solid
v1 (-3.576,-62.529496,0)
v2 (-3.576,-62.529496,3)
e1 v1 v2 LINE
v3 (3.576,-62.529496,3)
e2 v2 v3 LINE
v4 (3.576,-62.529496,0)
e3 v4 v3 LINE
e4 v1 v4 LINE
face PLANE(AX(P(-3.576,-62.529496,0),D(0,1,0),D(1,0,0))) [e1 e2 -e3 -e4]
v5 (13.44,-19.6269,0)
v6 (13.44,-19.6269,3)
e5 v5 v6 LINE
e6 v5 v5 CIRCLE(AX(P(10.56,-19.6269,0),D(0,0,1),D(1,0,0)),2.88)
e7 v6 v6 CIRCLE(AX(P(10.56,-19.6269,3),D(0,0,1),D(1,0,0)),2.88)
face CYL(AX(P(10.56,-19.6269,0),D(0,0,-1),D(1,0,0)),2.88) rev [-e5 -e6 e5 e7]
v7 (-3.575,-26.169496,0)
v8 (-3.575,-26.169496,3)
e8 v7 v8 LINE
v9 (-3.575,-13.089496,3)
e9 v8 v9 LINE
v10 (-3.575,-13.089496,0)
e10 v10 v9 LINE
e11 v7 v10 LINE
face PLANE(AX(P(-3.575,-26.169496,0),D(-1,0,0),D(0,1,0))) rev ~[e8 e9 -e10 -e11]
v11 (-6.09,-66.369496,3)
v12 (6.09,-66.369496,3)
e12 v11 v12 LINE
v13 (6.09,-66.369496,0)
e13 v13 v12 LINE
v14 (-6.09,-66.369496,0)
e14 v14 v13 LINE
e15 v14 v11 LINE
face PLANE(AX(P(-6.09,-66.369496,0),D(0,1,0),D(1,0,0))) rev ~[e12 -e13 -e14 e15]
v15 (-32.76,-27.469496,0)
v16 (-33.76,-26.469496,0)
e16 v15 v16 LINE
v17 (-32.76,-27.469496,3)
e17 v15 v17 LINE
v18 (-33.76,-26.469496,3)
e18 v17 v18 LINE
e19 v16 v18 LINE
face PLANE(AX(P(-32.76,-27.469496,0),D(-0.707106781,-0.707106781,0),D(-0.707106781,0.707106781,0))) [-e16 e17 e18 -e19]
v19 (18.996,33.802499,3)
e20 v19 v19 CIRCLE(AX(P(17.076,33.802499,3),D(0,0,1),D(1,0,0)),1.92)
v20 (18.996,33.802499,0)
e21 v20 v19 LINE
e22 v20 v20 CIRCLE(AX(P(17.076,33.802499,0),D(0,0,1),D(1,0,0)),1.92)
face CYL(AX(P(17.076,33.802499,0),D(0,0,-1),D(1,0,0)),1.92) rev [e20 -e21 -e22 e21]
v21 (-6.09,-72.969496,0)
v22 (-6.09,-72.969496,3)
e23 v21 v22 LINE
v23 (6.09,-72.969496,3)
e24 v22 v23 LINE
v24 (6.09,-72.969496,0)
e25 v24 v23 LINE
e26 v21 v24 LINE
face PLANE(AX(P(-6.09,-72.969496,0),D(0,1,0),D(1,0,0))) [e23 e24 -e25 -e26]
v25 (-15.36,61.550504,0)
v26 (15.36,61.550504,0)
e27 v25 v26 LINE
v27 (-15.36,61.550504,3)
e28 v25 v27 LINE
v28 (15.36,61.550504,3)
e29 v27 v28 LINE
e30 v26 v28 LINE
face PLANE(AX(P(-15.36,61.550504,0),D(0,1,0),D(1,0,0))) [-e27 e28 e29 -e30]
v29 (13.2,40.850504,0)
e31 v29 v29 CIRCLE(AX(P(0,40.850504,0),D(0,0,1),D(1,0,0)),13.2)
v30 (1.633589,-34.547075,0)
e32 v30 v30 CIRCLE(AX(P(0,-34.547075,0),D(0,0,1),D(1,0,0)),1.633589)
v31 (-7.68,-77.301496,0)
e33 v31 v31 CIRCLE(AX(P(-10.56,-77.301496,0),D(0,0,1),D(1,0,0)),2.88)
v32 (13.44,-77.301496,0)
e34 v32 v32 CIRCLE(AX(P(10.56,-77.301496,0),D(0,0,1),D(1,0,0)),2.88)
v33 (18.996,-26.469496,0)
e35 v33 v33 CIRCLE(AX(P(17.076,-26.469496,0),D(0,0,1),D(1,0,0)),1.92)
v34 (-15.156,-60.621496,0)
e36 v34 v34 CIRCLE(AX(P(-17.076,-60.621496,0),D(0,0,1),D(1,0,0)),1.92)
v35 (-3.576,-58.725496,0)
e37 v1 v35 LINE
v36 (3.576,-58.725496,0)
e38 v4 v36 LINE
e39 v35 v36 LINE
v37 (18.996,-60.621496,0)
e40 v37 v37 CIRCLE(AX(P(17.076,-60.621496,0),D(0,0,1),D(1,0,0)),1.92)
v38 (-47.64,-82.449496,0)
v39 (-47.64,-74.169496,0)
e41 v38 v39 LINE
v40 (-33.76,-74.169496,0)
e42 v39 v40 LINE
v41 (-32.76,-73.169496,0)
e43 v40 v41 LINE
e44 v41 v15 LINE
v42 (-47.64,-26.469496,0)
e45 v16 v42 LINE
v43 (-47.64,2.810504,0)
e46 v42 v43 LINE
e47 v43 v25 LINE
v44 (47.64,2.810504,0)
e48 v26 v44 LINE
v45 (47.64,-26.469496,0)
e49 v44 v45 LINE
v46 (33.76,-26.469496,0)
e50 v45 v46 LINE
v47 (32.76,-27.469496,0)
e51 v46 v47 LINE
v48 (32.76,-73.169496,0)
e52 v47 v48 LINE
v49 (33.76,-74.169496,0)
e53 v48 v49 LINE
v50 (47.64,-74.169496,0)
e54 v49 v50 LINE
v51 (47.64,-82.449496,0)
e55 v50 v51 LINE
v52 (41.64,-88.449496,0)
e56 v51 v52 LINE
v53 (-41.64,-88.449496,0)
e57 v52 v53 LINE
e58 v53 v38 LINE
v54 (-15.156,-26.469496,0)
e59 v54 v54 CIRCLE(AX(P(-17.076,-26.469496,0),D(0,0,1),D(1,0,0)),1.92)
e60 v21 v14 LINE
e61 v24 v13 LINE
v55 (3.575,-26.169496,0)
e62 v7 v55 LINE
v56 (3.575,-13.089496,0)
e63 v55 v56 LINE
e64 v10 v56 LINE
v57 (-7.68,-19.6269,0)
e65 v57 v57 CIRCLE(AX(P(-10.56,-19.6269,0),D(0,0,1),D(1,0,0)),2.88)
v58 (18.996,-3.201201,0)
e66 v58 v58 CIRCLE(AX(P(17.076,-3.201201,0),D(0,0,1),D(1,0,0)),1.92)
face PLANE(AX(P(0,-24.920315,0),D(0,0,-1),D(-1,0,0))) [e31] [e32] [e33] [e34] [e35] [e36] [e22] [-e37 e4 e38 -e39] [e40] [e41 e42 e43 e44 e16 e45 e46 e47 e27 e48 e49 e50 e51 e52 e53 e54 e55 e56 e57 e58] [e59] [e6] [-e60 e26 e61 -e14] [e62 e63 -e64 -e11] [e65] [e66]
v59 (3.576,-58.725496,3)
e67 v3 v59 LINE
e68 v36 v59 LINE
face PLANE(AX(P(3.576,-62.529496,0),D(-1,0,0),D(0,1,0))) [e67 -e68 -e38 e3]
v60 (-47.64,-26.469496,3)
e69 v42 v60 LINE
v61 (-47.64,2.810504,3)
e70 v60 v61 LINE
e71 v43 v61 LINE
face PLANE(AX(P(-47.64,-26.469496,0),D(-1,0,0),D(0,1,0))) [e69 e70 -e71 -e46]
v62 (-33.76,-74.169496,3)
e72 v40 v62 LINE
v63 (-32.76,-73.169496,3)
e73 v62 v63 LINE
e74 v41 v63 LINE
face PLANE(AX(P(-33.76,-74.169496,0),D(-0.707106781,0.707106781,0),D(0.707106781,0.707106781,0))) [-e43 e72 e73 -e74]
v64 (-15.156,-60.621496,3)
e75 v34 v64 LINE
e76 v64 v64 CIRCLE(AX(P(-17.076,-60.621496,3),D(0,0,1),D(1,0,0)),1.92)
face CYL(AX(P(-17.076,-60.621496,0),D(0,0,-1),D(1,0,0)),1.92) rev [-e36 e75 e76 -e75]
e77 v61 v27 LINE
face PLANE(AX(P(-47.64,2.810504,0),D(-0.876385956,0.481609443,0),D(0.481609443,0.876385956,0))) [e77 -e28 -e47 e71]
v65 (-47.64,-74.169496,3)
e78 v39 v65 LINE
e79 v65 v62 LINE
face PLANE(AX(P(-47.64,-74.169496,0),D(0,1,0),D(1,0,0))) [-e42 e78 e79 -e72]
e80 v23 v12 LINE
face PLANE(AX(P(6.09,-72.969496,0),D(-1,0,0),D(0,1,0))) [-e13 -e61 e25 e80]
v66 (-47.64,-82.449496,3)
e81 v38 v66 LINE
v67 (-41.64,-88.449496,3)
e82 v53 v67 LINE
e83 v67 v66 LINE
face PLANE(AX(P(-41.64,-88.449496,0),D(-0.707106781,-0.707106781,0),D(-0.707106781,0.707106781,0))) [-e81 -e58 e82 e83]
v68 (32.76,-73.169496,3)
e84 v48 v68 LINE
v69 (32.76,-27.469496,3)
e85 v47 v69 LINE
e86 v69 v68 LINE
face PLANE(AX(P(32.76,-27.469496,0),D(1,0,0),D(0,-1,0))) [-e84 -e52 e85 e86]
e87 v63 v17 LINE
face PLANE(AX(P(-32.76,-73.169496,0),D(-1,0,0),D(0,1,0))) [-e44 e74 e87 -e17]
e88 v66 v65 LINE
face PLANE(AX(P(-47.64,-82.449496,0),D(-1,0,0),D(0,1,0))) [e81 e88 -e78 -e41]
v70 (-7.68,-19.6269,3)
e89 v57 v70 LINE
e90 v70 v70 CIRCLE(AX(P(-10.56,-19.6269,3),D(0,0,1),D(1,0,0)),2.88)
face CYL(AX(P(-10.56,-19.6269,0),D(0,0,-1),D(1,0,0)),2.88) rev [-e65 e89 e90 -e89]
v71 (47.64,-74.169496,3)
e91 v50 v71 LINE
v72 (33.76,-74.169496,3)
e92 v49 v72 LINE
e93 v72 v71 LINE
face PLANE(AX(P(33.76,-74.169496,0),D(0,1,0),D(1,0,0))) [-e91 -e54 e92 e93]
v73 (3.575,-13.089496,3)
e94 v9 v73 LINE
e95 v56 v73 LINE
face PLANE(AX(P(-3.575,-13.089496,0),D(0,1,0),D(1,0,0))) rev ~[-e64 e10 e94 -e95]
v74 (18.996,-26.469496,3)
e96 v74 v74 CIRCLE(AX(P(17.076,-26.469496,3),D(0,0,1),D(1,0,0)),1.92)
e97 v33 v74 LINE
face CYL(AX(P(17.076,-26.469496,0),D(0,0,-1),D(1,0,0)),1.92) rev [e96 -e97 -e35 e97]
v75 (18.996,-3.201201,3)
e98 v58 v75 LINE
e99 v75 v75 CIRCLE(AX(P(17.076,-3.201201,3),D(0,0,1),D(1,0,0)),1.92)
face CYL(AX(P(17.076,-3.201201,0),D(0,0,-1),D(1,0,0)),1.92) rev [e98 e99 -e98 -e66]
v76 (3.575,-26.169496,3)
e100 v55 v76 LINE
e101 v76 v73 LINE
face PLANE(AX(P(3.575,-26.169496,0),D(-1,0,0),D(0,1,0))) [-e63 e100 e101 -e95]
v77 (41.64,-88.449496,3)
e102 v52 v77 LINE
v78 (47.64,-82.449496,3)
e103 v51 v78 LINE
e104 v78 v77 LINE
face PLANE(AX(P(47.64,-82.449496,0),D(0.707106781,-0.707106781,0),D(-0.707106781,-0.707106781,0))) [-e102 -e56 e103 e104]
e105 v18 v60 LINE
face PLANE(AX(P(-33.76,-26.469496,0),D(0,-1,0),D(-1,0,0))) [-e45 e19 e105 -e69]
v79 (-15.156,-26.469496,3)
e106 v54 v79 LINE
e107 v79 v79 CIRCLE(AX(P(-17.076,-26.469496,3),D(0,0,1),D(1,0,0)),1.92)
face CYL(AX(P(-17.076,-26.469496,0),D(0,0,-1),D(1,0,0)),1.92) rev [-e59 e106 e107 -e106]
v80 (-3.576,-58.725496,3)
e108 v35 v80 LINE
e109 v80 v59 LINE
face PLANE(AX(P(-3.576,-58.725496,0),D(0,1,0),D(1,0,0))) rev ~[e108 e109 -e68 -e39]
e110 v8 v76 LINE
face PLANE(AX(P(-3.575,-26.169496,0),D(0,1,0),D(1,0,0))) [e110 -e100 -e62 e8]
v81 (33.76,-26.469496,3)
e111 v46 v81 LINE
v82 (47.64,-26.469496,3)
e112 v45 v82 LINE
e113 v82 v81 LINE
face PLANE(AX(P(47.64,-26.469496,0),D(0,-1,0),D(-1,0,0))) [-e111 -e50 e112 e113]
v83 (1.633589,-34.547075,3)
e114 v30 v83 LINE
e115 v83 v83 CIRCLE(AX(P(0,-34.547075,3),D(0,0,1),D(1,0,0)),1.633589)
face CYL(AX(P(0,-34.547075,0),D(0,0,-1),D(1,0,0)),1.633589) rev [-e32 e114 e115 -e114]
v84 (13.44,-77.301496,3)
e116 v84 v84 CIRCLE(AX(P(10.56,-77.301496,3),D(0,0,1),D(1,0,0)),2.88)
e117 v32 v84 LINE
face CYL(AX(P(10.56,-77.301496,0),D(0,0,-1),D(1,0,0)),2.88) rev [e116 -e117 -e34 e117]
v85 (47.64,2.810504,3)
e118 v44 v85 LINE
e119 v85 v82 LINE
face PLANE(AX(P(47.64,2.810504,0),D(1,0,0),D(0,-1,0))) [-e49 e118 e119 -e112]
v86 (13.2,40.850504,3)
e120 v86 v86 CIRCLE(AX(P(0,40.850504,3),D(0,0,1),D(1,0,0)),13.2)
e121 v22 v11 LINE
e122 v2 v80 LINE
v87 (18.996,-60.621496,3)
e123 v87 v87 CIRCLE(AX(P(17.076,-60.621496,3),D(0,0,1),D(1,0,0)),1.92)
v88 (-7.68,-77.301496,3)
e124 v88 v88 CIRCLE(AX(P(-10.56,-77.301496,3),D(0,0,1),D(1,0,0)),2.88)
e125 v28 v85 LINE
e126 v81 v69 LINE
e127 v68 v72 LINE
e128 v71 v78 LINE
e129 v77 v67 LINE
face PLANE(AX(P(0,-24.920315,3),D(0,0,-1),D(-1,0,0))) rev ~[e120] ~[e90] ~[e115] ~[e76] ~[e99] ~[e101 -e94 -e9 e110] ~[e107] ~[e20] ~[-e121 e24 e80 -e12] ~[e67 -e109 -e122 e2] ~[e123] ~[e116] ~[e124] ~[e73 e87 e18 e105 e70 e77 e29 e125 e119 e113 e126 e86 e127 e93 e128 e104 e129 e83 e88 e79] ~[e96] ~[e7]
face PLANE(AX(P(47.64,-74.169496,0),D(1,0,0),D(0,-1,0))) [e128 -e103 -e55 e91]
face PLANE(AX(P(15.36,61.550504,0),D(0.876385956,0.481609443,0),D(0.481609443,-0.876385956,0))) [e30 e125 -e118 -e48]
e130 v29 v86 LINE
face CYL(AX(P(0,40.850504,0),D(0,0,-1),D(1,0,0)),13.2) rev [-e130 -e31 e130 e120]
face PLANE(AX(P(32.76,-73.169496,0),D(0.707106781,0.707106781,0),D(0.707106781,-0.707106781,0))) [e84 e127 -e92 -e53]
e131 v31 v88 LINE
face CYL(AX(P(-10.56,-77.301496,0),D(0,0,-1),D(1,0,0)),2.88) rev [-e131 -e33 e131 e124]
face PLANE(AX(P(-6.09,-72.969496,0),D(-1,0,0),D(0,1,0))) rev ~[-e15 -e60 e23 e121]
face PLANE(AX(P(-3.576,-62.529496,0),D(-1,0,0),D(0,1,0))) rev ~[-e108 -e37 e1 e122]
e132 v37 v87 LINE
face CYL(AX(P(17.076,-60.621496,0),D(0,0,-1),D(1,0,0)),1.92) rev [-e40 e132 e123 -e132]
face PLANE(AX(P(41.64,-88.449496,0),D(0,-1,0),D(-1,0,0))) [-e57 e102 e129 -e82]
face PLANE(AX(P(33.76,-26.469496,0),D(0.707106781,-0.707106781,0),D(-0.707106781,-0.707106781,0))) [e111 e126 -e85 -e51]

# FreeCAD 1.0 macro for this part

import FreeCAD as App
import Part
import Sketcher

doc = App.newDocument("Part")
body = doc.addObject("PartDesign::Body", "Body")

sketch1 = body.newObject("Sketcher::SketchObject", "Sketch")
sketch1.AttachmentSupport = (doc.getObject("XY_Plane"), [""])
sketch1.MapMode = "FlatFace"
sketch1.addGeometry([
    Part.LineSegment(App.Vector(15.4, 61.6, 0), App.Vector(-15.4, 61.6, 0)),
    Part.LineSegment(App.Vector(-15.4, 61.6, 0), App.Vector(-47.6, 2.8, 0)),
    Part.LineSegment(App.Vector(-47.6, 2.8, 0), App.Vector(-47.6, -26.5, 0)),
    Part.LineSegment(App.Vector(-47.6, -26.5, 0), App.Vector(-33.8, -26.5, 0)),
    Part.LineSegment(App.Vector(-33.8, -26.5, 0), App.Vector(-32.8, -27.5, 0)),
    Part.LineSegment(App.Vector(-32.8, -27.5, 0), App.Vector(-32.8, -73.2, 0)),
    Part.LineSegment(App.Vector(-32.8, -73.2, 0), App.Vector(-33.8, -74.2, 0)),
    Part.LineSegment(App.Vector(-33.8, -74.2, 0), App.Vector(-47.6, -74.2, 0)),
    Part.LineSegment(App.Vector(-47.6, -74.2, 0), App.Vector(-47.6, -82.4, 0)),
    Part.LineSegment(App.Vector(-47.6, -82.4, 0), App.Vector(-41.6, -88.4, 0)),
    Part.LineSegment(App.Vector(-41.6, -88.4, 0), App.Vector(41.6, -88.4, 0)),
    Part.LineSegment(App.Vector(41.6, -88.4, 0), App.Vector(47.6, -82.4, 0)),
    Part.LineSegment(App.Vector(47.6, -82.4, 0), App.Vector(47.6, -74.2, 0)),
    Part.LineSegment(App.Vector(47.6, -74.2, 0), App.Vector(33.8, -74.2, 0)),
    Part.LineSegment(App.Vector(33.8, -74.2, 0), App.Vector(32.8, -73.2, 0)),
    Part.LineSegment(App.Vector(32.8, -73.2, 0), App.Vector(32.8, -27.5, 0)),
    Part.LineSegment(App.Vector(32.8, -27.5, 0), App.Vector(33.8, -26.5, 0)),
    Part.LineSegment(App.Vector(33.8, -26.5, 0), App.Vector(47.6, -26.5, 0)),
    Part.LineSegment(App.Vector(47.6, -26.5, 0), App.Vector(47.6, 2.8, 0)),
    Part.LineSegment(App.Vector(47.6, 2.8, 0), App.Vector(15.4, 61.6, 0)),
    Part.Circle(App.Vector(10.6, -77.3, 0), App.Vector(0, 0, 1), 2.9),
    Part.Circle(App.Vector(17.1, -60.6, 0), App.Vector(0, 0, 1), 1.9),
    Part.Circle(App.Vector(17.1, -26.5, 0), App.Vector(0, 0, 1), 1.9),
    Part.Circle(App.Vector(10.6, -19.6, 0), App.Vector(0, 0, 1), 2.9),
    Part.LineSegment(App.Vector(-6.1, -73, 0), App.Vector(-6.1, -66.4, 0)),
    Part.LineSegment(App.Vector(-6.1, -66.4, 0), App.Vector(6.1, -66.4, 0)),
    Part.LineSegment(App.Vector(6.1, -66.4, 0), App.Vector(6.1, -73, 0)),
    Part.LineSegment(App.Vector(6.1, -73, 0), App.Vector(-6.1, -73, 0)),
    Part.LineSegment(App.Vector(-3.6, -62.5, 0), App.Vector(-3.6, -58.7, 0)),
    Part.LineSegment(App.Vector(-3.6, -58.7, 0), App.Vector(3.6, -58.7, 0)),
    Part.LineSegment(App.Vector(3.6, -58.7, 0), App.Vector(3.6, -62.5, 0)),
    Part.LineSegment(App.Vector(3.6, -62.5, 0), App.Vector(-3.6, -62.5, 0)),
    Part.Circle(App.Vector(-10.6, -77.3, 0), App.Vector(0, 0, 1), 2.9),
    Part.Circle(App.Vector(-17.1, -60.6, 0), App.Vector(0, 0, 1), 1.9),
    Part.Circle(App.Vector(0, -34.5, 0), App.Vector(0, 0, 1), 1.6),
    Part.LineSegment(App.Vector(-3.6, -26.2, 0), App.Vector(-3.6, -13.1, 0)),
    Part.LineSegment(App.Vector(-3.6, -13.1, 0), App.Vector(3.6, -13.1, 0)),
    Part.LineSegment(App.Vector(3.6, -13.1, 0), App.Vector(3.6, -26.2, 0)),
    Part.LineSegment(App.Vector(3.6, -26.2, 0), App.Vector(-3.6, -26.2, 0)),
    Part.Circle(App.Vector(-10.6, -19.6, 0), App.Vector(0, 0, 1), 2.9),
    Part.Circle(App.Vector(-17.1, -26.5, 0), App.Vector(0, 0, 1), 1.9),
    Part.Circle(App.Vector(17.1, -3.2, 0), App.Vector(0, 0, 1), 1.9),
    Part.Circle(App.Vector(17.1, 33.8, 0), App.Vector(0, 0, 1), 1.9),
    Part.Circle(App.Vector(0, 40.9, 0), App.Vector(0, 0, 1), 13.2),
], False)
sketch1.addConstraint([
    Sketcher.Constraint("Coincident", 0, 2, 1, 1),
    Sketcher.Constraint("Coincident", 1, 2, 2, 1),
    Sketcher.Constraint("Coincident", 2, 2, 3, 1),
    Sketcher.Constraint("Coincident", 3, 2, 4, 1),
    Sketcher.Constraint("Coincident", 4, 2, 5, 1),
    Sketcher.Constraint("Coincident", 5, 2, 6, 1),
    Sketcher.Constraint("Coincident", 6, 2, 7, 1),
    Sketcher.Constraint("Coincident", 7, 2, 8, 1),
    Sketcher.Constraint("Coincident", 8, 2, 9, 1),
    Sketcher.Constraint("Coincident", 9, 2, 10, 1),
    Sketcher.Constraint("Coincident", 10, 2, 11, 1),
    Sketcher.Constraint("Coincident", 11, 2, 12, 1),
    Sketcher.Constraint("Coincident", 12, 2, 13, 1),
    Sketcher.Constraint("Coincident", 13, 2, 14, 1),
    Sketcher.Constraint("Coincident", 14, 2, 15, 1),
    Sketcher.Constraint("Coincident", 15, 2, 16, 1),
    Sketcher.Constraint("Coincident", 16, 2, 17, 1),
    Sketcher.Constraint("Coincident", 17, 2, 18, 1),
    Sketcher.Constraint("Coincident", 18, 2, 19, 1),
    Sketcher.Constraint("Coincident", 19, 2, 0, 1),
    Sketcher.Constraint("Coincident", 24, 2, 25, 1),
    Sketcher.Constraint("Coincident", 25, 2, 26, 1),
    Sketcher.Constraint("Coincident", 26, 2, 27, 1),
    Sketcher.Constraint("Coincident", 27, 2, 24, 1),
    Sketcher.Constraint("Coincident", 28, 2, 29, 1),
    Sketcher.Constraint("Coincident", 29, 2, 30, 1),
    Sketcher.Constraint("Coincident", 30, 2, 31, 1),
    Sketcher.Constraint("Coincident", 31, 2, 28, 1),
    Sketcher.Constraint("Coincident", 35, 2, 36, 1),
    Sketcher.Constraint("Coincident", 36, 2, 37, 1),
    Sketcher.Constraint("Coincident", 37, 2, 38, 1),
    Sketcher.Constraint("Coincident", 38, 2, 35, 1),
    Sketcher.Constraint("Horizontal", 0),
    Sketcher.Constraint("Vertical", 2),
    Sketcher.Constraint("Horizontal", 3),
    Sketcher.Constraint("Vertical", 5),
    Sketcher.Constraint("Horizontal", 7),
    Sketcher.Constraint("Vertical", 8),
    Sketcher.Constraint("Horizontal", 10),
    Sketcher.Constraint("Vertical", 12),
    Sketcher.Constraint("Horizontal", 13),
    Sketcher.Constraint("Vertical", 15),
    Sketcher.Constraint("Horizontal", 17),
    Sketcher.Constraint("Vertical", 18),
    Sketcher.Constraint("Vertical", 24),
    Sketcher.Constraint("Horizontal", 25),
    Sketcher.Constraint("Vertical", 26),
    Sketcher.Constraint("Horizontal", 27),
    Sketcher.Constraint("Vertical", 28),
    Sketcher.Constraint("Horizontal", 29),
    Sketcher.Constraint("Vertical", 30),
    Sketcher.Constraint("Horizontal", 31),
    Sketcher.Constraint("Vertical", 35),
    Sketcher.Constraint("Horizontal", 36),
    Sketcher.Constraint("Vertical", 37),
    Sketcher.Constraint("Horizontal", 38),
    Sketcher.Constraint("Equal", 21, 22),
    Sketcher.Constraint("Equal", 20, 23),
    Sketcher.Constraint("Equal", 23, 32),
    Sketcher.Constraint("Equal", 22, 33),
    Sketcher.Constraint("Equal", 32, 39),
    Sketcher.Constraint("Equal", 33, 40),
    Sketcher.Constraint("Equal", 40, 41),
    Sketcher.Constraint("Equal", 41, 42),
    Sketcher.Constraint("Symmetric", 20, 3, 32, 3, -2),
    Sketcher.Constraint("Symmetric", 21, 3, 33, 3, -2),
    Sketcher.Constraint("Symmetric", 23, 3, 39, 3, -2),
    Sketcher.Constraint("Symmetric", 22, 3, 40, 3, -2),
    Sketcher.Constraint("Symmetric", 8, 2, 11, 2, -2),
    Sketcher.Constraint("Symmetric", 6, 2, 13, 2, -2),
    Sketcher.Constraint("Symmetric", 5, 2, 14, 2, -2),
    Sketcher.Constraint("Symmetric", 3, 2, 16, 2, -2),
    Sketcher.Constraint("Symmetric", 1, 2, 18, 2, -2),
    Sketcher.Constraint("PointOnObject", 34, 3, -2),
    Sketcher.Constraint("PointOnObject", 43, 3, -2),
    Sketcher.Constraint("Perpendicular", 4, 6),
    Sketcher.Constraint("Perpendicular", 6, 9),
    Sketcher.Constraint("Perpendicular", 9, 11),
    Sketcher.Constraint("Perpendicular", 11, 14),
    Sketcher.Constraint("Perpendicular", 14, 16),
    Sketcher.Constraint("Horizontal", 40, 3, 2, 2),
    Sketcher.Constraint("Vertical", 21, 3, 22, 3),
    Sketcher.Constraint("Vertical", 20, 3, 23, 3),
    Sketcher.Constraint("Vertical", 22, 3, 41, 3),
    Sketcher.Constraint("Vertical", 41, 3, 42, 3),
    Sketcher.Constraint("Vertical", 3, 2, 6, 2),
    Sketcher.Constraint("Vertical", 2, 2, 7, 2),
    Sketcher.Constraint("Equal", 1, 19),
    Sketcher.Constraint("Diameter", 43, 26.4),
    Sketcher.Constraint("Diameter", 20, 5.76),
    Sketcher.Constraint("Diameter", 21, 3.84),
    Sketcher.Constraint("DistanceY", 5, 2, 5, 1, 45.7),
    Sketcher.Constraint("DistanceY", 24, 1, 24, 2, 6.6),
    Sketcher.Constraint("DistanceX", 3, 2, 4, 2, 1.0),
    Sketcher.Constraint("DistanceX", 8, 2, 9, 2, 6.0),
    Sketcher.Constraint("DistanceX", 0, 2, 0, 1, 30.72),
    Sketcher.Constraint("DistanceX", 3, 1, 3, 2, 13.88),
    Sketcher.Constraint("DistanceX", 10, 1, 10, 2, 83.28),
    Sketcher.Constraint("DistanceX", 25, 1, 25, 2, 12.18),
    Sketcher.Constraint("DistanceX", 36, 1, 36, 2, 7.15),
    Sketcher.Constraint("DistanceY", 2, 2, 2, 1, 29.28),
    Sketcher.Constraint("DistanceY", 8, 2, 8, 1, 8.28),
    Sketcher.Constraint("DistanceY", 35, 1, 35, 2, 13.08),
    Sketcher.Constraint("DistanceY", 43, 3, 0, 2, 20.7),
    Sketcher.Constraint("DistanceX", 0, 2, 39, 3, 4.8),
    Sketcher.Constraint("DistanceY", 5, 2, 24, 2, 6.8),
    Sketcher.Constraint("DistanceX", 33, 3, 28, 2, 13.5),
    Sketcher.Constraint("DistanceX", 29, 2, 21, 3, 13.5),
    Sketcher.Constraint("DistanceY", 22, 3, 37, 2, 0.3),
    Sketcher.Constraint("Diameter", 34, 3.267178),
    Sketcher.Constraint("DistanceX", 29, 1, 29, 2, 7.152),
    Sketcher.Constraint("DistanceY", 28, 1, 28, 2, 3.804),
    Sketcher.Constraint("DistanceX", 24, 2, -1, 1, 6.09),
    Sketcher.Constraint("DistanceY", 20, 3, 21, 3, 16.68),
    Sketcher.Constraint("DistanceY", 22, 3, 43, 3, 67.32),
    Sketcher.Constraint("DistanceY", 25, 2, 30, 2, 3.84),
    Sketcher.Constraint("DistanceX", 35, 2, -1, 1, 3.575),
    Sketcher.Constraint("DistanceY", 21, 3, 22, 3, 34.152),
    Sketcher.Constraint("DistanceY", 23, 3, -1, 1, 19.6269),
    Sketcher.Constraint("DistanceY", 41, 3, -1, 1, 3.201201),
    Sketcher.Constraint("DistanceY", -1, 1, 42, 3, 33.802499),
    Sketcher.Constraint("DistanceY", 34, 3, 22, 3, 8.077578),
    Sketcher.Constraint("DistanceY", 20, 3, -1, 1, 77.301496),
])
pad1 = body.newObject("PartDesign::Pad", "Pad")
pad1.Profile = sketch1
pad1.Length = 3

doc.recompute()
